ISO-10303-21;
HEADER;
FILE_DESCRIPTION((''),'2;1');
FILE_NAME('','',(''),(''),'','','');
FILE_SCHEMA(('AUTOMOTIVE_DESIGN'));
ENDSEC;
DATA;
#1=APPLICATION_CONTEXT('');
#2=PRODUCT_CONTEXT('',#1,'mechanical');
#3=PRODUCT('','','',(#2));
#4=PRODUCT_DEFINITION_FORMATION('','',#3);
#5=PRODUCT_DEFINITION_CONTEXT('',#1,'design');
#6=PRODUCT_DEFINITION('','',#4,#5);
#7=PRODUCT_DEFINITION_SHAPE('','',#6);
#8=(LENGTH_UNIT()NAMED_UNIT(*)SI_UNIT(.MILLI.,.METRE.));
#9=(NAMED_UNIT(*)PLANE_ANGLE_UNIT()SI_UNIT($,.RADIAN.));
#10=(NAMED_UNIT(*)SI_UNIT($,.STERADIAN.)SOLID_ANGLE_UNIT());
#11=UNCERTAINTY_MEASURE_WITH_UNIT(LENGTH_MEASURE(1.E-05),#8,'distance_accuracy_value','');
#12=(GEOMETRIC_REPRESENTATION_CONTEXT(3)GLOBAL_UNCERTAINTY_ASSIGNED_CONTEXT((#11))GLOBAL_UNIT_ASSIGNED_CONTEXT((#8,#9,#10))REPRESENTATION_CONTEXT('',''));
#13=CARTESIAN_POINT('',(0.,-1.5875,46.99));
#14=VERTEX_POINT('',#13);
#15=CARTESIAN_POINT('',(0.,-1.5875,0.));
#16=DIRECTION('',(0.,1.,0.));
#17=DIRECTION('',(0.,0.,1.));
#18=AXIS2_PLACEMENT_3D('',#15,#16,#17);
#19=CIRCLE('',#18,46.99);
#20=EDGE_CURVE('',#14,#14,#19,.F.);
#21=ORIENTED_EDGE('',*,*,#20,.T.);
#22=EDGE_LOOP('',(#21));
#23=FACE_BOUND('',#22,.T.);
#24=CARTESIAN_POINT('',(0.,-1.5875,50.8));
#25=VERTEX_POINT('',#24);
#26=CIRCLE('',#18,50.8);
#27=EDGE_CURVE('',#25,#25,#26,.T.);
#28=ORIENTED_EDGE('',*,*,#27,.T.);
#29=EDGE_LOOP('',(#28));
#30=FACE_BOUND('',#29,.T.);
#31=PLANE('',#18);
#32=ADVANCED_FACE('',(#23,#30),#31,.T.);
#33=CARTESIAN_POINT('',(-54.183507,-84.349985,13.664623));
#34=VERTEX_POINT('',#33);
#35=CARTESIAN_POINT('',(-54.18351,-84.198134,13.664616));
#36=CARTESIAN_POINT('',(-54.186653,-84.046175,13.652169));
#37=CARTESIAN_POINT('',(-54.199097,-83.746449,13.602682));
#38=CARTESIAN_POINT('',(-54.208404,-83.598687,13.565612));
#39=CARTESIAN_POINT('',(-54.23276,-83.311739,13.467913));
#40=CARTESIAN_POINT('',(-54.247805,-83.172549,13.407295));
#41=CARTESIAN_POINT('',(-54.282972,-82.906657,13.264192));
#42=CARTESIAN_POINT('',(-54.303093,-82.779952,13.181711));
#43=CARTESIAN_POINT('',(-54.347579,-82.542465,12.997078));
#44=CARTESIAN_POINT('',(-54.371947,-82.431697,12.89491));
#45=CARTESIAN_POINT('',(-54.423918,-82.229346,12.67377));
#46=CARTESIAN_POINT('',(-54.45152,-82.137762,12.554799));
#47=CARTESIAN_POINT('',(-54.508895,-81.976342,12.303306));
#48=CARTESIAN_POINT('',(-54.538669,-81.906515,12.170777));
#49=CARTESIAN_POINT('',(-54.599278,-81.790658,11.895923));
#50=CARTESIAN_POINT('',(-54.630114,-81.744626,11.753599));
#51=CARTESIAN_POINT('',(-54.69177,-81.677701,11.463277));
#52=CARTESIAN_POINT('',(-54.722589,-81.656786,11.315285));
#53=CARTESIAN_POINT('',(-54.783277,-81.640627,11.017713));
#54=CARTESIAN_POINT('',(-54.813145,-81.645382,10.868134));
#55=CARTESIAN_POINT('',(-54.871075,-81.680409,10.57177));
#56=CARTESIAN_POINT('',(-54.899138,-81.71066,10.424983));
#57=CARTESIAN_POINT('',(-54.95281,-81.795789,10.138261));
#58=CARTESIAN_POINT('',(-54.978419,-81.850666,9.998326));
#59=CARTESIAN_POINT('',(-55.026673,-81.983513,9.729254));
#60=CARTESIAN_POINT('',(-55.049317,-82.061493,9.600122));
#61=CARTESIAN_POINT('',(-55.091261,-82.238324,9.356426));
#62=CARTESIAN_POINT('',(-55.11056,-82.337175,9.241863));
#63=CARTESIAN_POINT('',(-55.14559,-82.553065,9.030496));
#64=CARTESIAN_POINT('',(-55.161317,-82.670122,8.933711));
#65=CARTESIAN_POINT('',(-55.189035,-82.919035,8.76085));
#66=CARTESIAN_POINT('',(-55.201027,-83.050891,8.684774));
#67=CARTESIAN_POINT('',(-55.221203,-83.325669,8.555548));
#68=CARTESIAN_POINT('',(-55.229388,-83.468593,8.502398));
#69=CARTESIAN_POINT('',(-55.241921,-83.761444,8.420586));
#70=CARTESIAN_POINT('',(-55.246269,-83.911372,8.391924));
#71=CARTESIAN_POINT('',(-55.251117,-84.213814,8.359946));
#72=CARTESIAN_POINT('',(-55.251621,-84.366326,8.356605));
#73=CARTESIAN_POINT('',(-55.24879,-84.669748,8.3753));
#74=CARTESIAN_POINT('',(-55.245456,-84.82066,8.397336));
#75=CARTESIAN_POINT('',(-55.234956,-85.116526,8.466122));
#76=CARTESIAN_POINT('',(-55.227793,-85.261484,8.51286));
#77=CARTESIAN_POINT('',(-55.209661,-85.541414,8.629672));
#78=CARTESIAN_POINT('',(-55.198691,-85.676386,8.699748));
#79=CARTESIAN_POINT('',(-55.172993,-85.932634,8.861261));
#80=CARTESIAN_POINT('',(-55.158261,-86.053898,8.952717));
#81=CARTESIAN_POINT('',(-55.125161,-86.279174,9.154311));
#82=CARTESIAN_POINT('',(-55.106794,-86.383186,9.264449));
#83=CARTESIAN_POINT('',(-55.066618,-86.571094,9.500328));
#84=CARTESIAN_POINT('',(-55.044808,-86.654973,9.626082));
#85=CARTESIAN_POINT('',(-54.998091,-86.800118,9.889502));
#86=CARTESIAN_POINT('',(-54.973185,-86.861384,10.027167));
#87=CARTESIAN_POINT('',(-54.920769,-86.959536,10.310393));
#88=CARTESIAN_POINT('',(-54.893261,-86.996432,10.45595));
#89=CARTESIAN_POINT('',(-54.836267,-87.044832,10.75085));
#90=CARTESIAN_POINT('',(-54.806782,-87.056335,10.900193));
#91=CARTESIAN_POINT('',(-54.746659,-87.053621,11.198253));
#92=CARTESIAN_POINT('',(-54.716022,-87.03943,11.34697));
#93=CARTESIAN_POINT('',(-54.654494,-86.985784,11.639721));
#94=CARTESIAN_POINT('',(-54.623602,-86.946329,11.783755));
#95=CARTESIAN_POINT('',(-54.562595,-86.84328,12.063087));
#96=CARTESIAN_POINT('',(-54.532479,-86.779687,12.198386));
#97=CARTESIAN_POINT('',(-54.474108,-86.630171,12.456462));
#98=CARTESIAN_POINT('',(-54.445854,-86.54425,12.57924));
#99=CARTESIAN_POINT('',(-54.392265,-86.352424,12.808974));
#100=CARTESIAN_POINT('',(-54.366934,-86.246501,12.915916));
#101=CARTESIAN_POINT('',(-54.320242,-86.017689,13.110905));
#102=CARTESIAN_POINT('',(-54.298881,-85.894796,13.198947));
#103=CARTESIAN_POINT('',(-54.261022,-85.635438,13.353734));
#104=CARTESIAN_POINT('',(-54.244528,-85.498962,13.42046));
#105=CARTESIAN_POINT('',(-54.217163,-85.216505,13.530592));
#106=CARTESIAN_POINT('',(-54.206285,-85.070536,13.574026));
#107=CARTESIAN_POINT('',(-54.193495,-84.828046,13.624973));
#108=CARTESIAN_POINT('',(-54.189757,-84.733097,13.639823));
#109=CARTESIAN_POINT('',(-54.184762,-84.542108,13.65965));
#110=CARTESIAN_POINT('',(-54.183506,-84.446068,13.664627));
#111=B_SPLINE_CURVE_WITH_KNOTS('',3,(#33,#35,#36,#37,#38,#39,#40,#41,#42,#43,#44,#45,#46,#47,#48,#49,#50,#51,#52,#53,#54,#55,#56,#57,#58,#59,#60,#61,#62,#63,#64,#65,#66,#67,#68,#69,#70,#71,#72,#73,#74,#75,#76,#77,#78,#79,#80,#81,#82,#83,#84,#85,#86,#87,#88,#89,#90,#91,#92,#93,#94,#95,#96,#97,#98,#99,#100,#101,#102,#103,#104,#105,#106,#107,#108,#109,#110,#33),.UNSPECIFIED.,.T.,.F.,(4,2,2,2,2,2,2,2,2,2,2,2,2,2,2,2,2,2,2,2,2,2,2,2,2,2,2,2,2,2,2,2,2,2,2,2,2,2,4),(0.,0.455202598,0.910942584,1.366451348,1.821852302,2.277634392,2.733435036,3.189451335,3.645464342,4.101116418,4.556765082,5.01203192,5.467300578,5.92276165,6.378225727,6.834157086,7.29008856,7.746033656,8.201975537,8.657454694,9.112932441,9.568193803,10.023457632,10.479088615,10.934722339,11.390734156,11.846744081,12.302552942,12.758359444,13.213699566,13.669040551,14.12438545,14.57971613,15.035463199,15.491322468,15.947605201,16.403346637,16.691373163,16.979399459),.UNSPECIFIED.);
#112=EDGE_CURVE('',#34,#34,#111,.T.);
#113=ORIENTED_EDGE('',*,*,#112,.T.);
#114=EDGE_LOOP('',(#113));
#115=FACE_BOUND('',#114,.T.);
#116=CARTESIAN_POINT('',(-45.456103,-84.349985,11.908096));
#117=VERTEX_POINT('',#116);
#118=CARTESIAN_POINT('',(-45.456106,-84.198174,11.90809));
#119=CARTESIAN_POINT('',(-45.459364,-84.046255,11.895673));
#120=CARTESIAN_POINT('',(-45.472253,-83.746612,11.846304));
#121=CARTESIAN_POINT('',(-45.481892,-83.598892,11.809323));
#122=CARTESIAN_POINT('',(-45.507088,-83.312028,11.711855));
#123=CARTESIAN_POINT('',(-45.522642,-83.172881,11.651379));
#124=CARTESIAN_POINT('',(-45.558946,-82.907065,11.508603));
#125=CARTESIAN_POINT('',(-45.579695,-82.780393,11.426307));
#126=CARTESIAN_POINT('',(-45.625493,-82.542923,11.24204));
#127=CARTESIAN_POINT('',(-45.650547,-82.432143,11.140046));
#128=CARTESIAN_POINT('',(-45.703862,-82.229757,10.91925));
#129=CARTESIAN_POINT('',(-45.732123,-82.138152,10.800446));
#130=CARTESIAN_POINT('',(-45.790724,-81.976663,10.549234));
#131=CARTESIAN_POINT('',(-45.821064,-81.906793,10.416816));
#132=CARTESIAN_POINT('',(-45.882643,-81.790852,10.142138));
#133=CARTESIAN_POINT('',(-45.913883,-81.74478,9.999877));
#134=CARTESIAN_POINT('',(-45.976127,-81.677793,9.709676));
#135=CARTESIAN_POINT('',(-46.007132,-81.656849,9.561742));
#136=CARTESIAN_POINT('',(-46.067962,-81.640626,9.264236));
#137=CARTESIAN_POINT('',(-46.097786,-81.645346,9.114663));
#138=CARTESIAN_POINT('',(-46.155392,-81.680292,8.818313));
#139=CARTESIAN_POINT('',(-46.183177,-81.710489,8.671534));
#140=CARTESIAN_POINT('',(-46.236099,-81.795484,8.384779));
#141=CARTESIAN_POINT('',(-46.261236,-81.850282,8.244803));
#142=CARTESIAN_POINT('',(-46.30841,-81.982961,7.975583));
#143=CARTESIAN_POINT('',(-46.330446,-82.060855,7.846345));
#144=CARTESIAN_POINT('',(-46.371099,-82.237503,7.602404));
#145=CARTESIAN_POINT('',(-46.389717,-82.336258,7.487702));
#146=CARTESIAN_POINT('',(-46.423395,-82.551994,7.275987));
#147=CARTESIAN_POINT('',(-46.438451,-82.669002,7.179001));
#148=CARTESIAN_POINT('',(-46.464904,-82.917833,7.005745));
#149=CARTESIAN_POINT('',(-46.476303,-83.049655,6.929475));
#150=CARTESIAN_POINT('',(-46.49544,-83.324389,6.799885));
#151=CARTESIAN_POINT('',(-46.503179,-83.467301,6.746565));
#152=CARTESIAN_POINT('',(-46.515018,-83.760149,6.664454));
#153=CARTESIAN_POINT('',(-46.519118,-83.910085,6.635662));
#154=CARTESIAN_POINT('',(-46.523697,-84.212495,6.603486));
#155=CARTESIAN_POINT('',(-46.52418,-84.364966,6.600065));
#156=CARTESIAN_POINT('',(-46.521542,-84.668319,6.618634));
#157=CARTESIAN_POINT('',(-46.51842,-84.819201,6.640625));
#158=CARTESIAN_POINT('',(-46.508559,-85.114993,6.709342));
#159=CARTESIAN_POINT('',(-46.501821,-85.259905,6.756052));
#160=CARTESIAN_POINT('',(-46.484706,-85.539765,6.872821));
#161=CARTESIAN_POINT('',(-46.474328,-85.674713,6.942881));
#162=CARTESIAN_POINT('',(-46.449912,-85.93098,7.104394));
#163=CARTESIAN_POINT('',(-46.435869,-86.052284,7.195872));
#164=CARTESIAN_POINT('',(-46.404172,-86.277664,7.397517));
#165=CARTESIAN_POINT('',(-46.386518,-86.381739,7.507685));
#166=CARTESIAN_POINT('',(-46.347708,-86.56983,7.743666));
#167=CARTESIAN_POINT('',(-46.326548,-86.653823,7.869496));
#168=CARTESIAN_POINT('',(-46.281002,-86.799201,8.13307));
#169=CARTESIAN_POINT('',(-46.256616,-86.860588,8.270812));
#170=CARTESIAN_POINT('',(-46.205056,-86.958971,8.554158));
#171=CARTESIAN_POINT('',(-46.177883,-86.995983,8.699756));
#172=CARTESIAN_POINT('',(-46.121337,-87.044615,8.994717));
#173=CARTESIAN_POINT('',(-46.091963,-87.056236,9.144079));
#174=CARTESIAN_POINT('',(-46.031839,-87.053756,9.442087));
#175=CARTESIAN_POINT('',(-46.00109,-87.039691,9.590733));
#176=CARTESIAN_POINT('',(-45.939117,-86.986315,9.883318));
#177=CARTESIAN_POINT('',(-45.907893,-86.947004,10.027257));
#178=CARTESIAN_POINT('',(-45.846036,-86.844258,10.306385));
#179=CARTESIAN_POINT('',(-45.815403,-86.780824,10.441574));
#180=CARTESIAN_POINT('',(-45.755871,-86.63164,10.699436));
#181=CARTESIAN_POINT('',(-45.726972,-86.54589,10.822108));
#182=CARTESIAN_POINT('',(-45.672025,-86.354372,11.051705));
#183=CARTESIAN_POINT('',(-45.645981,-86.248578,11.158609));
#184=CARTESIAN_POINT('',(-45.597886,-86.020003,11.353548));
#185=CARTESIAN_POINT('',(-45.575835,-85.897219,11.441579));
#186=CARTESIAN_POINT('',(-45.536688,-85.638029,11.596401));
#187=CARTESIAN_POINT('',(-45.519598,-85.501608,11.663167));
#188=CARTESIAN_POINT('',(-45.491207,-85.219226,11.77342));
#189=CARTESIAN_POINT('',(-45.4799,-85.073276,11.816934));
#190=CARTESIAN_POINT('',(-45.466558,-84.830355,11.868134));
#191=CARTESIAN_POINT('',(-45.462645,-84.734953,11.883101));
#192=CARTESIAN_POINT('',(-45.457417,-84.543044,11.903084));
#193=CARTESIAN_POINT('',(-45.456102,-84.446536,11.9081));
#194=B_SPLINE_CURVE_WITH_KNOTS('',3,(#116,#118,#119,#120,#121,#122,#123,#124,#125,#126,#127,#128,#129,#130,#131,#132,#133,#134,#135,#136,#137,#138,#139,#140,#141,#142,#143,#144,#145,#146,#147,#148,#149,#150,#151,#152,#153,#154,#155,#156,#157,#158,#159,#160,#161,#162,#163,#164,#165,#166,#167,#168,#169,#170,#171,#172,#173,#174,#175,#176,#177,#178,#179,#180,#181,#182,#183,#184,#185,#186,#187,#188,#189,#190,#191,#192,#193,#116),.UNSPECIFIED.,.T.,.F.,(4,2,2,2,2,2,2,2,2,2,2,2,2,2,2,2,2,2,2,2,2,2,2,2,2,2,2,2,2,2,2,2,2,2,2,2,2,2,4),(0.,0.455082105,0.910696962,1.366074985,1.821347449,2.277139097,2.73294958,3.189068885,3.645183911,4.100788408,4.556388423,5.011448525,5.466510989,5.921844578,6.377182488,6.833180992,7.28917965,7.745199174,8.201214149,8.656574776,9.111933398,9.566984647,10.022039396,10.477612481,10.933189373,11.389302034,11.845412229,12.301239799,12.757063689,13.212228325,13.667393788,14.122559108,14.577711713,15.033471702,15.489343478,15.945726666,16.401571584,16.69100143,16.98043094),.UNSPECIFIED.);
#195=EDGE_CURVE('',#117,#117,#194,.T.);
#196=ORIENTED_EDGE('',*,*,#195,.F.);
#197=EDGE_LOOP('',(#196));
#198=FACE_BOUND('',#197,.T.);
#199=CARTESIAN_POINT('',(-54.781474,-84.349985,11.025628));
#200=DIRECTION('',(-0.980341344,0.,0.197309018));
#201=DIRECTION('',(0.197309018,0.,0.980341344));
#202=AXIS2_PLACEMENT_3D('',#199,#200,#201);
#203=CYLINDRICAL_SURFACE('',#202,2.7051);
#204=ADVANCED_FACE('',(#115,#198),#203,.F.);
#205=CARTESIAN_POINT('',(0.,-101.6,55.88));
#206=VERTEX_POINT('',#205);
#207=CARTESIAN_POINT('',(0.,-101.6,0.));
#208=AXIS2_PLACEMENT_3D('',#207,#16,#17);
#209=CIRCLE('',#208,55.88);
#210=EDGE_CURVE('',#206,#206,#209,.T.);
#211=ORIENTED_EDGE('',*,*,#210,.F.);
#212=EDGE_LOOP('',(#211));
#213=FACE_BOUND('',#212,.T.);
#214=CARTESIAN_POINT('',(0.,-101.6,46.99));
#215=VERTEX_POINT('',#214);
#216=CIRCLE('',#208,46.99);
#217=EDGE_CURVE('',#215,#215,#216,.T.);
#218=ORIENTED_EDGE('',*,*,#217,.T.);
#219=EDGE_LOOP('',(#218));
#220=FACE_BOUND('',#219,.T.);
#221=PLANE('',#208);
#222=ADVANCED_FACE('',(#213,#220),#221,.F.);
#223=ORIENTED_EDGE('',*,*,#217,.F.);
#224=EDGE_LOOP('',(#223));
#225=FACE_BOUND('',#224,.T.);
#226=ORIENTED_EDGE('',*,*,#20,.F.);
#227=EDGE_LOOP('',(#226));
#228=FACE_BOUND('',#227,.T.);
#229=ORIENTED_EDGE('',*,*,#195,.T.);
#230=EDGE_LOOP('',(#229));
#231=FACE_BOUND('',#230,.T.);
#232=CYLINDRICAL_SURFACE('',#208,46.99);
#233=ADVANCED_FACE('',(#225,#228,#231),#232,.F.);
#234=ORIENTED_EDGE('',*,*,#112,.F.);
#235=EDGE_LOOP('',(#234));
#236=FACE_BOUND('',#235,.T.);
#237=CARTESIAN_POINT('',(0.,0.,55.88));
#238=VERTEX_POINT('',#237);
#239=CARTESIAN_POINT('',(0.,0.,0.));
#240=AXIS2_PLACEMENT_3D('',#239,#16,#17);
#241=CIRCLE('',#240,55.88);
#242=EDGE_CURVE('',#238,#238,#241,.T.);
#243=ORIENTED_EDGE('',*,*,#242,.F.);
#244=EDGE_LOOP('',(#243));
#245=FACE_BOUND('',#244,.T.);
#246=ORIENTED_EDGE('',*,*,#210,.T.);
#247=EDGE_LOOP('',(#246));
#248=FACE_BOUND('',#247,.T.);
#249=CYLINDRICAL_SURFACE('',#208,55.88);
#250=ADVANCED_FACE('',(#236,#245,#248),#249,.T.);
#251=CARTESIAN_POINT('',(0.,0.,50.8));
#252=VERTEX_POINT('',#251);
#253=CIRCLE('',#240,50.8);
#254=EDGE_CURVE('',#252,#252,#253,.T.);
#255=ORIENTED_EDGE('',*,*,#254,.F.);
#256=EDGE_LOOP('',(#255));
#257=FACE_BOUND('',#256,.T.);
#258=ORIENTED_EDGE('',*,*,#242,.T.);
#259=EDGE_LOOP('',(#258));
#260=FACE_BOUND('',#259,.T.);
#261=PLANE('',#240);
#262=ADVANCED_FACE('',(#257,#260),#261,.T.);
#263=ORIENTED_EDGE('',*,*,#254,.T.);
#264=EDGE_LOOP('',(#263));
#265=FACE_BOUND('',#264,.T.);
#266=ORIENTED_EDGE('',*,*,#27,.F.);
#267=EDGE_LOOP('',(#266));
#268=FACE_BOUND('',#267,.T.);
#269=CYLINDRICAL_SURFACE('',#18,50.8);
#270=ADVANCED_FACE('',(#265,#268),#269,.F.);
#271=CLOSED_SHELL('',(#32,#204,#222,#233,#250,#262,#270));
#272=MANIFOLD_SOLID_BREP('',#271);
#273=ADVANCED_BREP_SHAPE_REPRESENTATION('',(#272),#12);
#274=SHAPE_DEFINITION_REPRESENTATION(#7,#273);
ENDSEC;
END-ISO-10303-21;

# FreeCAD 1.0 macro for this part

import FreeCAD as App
import Part
import Sketcher

V = App.Vector
Q = App.Units.Quantity

doc = App.newDocument("Part")
params = doc.addObject("Spreadsheet::Sheet", "Params")
for row, (alias, value) in enumerate([
    ("sketch1_diameter", "4.4 in"),
    ("sketch1_diameter2", "3.7 in"),
    ("pad1_length", "4 in"),
    ("sketch2_diameter", "4 in"),
    ("pocket1_length", "0.0625 in"),
    ("sketch3_diameter", "0.213 in"),
], start=1):
    params.set(f"A{row}", alias)
    params.set(f"B{row}", "=" + value)
    params.setAlias(f"B{row}", alias)

body = doc.addObject("PartDesign::Body", "Body")

# Sketch on XZ plane
sketch1 = doc.addObject("Sketcher::SketchObject", "Sketch")
body.addObject(sketch1)
sketch1.AttachmentSupport = (doc.XZ_Plane, [""])
sketch1.MapMode = "FlatFace"
sketch1.addGeometry([
    Part.Circle(V(0, 0, 0), V(0, 0, 1), 55.88),
    Part.Circle(V(0, 0, 0), V(0, 0, 1), 46.99),
], False)
sketch1.addConstraint([
    Sketcher.Constraint("Coincident", 0, 3, -1, 1),
    Sketcher.Constraint("Coincident", 1, 3, -1, 1),
    Sketcher.Constraint("Diameter", 0, Q("4.4 in")),
    Sketcher.Constraint("Diameter", 1, Q("3.7 in")),
])
sketch1.setExpression("Constraints[2]", "Params.sketch1_diameter")
sketch1.setExpression("Constraints[3]", "Params.sketch1_diameter2")
pad1 = doc.addObject("PartDesign::Pad", "Pad")
body.addObject(pad1)
pad1.Profile = sketch1
pad1.setExpression("Length", "Params.pad1_length")

# Sketch on XZ plane
sketch2 = doc.addObject("Sketcher::SketchObject", "Sketch001")
body.addObject(sketch2)
sketch2.AttachmentSupport = (doc.XZ_Plane, [""])
sketch2.MapMode = "FlatFace"
sketch2.addGeometry(Part.Circle(V(0, 0, 0), V(0, 0, 1), 50.8), False)
sketch2.addConstraint([
    Sketcher.Constraint("Coincident", 0, 3, -1, 1),
    Sketcher.Constraint("Diameter", 0, Q("4 in")),
])
sketch2.setExpression("Constraints[1]", "Params.sketch2_diameter")
pocket1 = doc.addObject("PartDesign::Pocket", "Pocket")
body.addObject(pocket1)
pocket1.Profile = sketch2
pocket1.setExpression("Length", "Params.pocket1_length")
pocket1.Reversed = True

# Sketch on an angled plane
sketch3 = doc.addObject("Sketcher::SketchObject", "Sketch002")
body.addObject(sketch3)
sketch3.Placement = App.Placement(V(-54.781474, -84.349985, 11.025628), App.Rotation(V(-0.197309018, 0, -0.980341344), V(0, -0.999999999, 0), V(-0.980341344, 0, 0.197309018), "ZXY"))
sketch3.addGeometry(Part.Circle(V(0, 0, 0), V(0, 0, 1), 2.7051), False)
sketch3.addConstraint([
    Sketcher.Constraint("Coincident", 0, 3, -1, 1),
    Sketcher.Constraint("Diameter", 0, Q("0.213 in")),
])
sketch3.setExpression("Constraints[1]", "Params.sketch3_diameter")
pocket2 = doc.addObject("PartDesign::Pocket", "Pocket001")
body.addObject(pocket2)
pocket2.Profile = sketch3
pocket2.Type = "UpToFirst"

doc.recompute()
